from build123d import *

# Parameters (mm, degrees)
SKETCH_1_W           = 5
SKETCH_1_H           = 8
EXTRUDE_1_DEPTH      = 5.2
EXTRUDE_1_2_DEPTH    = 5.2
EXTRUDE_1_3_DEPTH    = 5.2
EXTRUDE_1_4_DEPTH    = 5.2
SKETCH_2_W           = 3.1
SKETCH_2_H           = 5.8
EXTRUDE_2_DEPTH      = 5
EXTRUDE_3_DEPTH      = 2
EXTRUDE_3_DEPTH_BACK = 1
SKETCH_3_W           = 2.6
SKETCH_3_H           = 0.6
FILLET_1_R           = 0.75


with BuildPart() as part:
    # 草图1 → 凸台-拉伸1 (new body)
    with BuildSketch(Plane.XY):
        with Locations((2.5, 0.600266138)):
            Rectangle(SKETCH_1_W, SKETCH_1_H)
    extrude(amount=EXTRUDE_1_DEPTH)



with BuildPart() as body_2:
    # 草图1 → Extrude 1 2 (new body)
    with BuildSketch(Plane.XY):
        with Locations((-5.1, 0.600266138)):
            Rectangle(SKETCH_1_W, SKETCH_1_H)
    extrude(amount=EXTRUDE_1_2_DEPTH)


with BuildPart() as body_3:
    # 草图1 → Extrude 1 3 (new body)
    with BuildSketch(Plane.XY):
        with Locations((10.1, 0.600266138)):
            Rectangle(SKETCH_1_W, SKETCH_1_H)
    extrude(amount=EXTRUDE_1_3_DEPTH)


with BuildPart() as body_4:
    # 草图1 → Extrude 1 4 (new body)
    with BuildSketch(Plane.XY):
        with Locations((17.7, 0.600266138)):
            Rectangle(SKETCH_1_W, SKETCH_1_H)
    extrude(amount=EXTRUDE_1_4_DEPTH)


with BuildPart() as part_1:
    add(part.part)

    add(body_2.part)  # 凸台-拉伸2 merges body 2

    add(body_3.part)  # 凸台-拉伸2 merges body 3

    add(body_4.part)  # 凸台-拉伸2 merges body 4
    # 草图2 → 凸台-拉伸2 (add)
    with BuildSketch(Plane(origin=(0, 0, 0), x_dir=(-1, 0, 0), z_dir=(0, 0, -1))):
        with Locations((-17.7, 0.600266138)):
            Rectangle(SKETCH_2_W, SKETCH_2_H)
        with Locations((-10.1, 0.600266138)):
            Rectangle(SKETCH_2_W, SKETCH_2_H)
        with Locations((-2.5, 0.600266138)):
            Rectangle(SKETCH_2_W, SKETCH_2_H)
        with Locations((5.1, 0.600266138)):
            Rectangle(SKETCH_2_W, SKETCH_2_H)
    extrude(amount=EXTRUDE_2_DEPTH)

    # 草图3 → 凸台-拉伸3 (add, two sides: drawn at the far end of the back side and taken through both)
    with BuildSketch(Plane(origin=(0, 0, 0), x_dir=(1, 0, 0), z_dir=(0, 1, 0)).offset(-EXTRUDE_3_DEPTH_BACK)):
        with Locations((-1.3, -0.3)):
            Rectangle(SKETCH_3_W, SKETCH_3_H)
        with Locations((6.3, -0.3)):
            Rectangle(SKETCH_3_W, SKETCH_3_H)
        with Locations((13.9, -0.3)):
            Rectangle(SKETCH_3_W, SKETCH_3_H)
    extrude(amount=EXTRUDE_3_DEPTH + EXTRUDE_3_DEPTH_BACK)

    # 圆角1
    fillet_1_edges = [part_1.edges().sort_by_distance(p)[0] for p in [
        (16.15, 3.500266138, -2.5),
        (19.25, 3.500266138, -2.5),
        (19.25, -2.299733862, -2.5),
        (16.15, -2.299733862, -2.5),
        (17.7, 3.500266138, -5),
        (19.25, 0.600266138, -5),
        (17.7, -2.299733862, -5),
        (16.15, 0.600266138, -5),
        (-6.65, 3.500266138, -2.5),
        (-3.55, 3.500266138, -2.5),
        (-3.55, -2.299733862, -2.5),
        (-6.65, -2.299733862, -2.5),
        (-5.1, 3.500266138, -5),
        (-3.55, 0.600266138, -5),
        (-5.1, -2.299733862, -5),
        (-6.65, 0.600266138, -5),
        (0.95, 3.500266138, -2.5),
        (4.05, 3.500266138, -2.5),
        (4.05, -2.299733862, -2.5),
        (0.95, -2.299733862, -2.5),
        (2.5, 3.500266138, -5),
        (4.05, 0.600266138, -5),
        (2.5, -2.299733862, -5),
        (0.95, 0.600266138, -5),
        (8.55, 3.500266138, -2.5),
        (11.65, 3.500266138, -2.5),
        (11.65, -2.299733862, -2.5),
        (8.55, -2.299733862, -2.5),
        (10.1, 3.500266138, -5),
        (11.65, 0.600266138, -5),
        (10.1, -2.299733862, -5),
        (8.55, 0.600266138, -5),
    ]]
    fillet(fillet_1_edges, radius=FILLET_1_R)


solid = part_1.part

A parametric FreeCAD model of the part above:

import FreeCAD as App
import Part
import Sketcher

V = App.Vector


def edges_at(feature, points):
    """Names of the edges that pass closest to the given points."""
    edges = feature.Shape.Edges
    near = lambda p: min(range(len(edges)), key=lambda i: edges[i].distToShape(Part.Vertex(*p))[0])
    return sorted({f"Edge{near(p) + 1}" for p in points})

doc = App.newDocument("Part")
body = doc.addObject("PartDesign::Body", "Body")

sketch1 = body.newObject("Sketcher::SketchObject", "Sketch")
sketch1.AttachmentSupport = (doc.getObject("XY_Plane"), [""])
sketch1.MapMode = "FlatFace"
sketch1.addGeometry(Part.LineSegment(V(0, 5, 0), V(0, -3, 0)), False)
sketch1.addGeometry(Part.LineSegment(V(0, -3, 0), V(5, -3, 0)), False)
sketch1.addGeometry(Part.LineSegment(V(5, -3, 0), V(5, 5, 0)), False)
sketch1.addGeometry(Part.LineSegment(V(5, 5, 0), V(0, 5, 0)), False)
sketch1.addConstraint(Sketcher.Constraint("Coincident", 0, 2, 1, 1))
sketch1.addConstraint(Sketcher.Constraint("Coincident", 1, 2, 2, 1))
sketch1.addConstraint(Sketcher.Constraint("Coincident", 2, 2, 3, 1))
sketch1.addConstraint(Sketcher.Constraint("Coincident", 3, 2, 0, 1))
sketch1.addConstraint(Sketcher.Constraint("Vertical", 0))
sketch1.addConstraint(Sketcher.Constraint("Horizontal", 1))
sketch1.addConstraint(Sketcher.Constraint("Vertical", 2))
sketch1.addConstraint(Sketcher.Constraint("Horizontal", 3))
sketch1.addConstraint(Sketcher.Constraint("PointOnObject", 0, 2, -2))
sketch1.addConstraint(Sketcher.Constraint("DistanceX", 1, 1, 1, 2, 5.0))
sketch1.addConstraint(Sketcher.Constraint("DistanceY", 0, 2, 0, 1, 8.0))
sketch1.addConstraint(Sketcher.Constraint("DistanceY", 0, 2, -1, 1, 3.399734))
pad1 = body.newObject("PartDesign::Pad", "Pad")
pad1.Profile = sketch1
pad1.Length = 5.2
body2 = doc.addObject("PartDesign::Body", "Body001")

sketch2 = body2.newObject("Sketcher::SketchObject", "Sketch001")
sketch2.AttachmentSupport = (doc.getObject("XY_Plane001"), [""])
sketch2.MapMode = "FlatFace"
sketch2.addGeometry(Part.LineSegment(V(-8, 5, 0), V(-8, -3, 0)), False)
sketch2.addGeometry(Part.LineSegment(V(-8, -3, 0), V(-3, -3, 0)), False)
sketch2.addGeometry(Part.LineSegment(V(-3, -3, 0), V(-3, 5, 0)), False)
sketch2.addGeometry(Part.LineSegment(V(-3, 5, 0), V(-8, 5, 0)), False)
sketch2.addConstraint(Sketcher.Constraint("Coincident", 0, 2, 1, 1))
sketch2.addConstraint(Sketcher.Constraint("Coincident", 1, 2, 2, 1))
sketch2.addConstraint(Sketcher.Constraint("Coincident", 2, 2, 3, 1))
sketch2.addConstraint(Sketcher.Constraint("Coincident", 3, 2, 0, 1))
sketch2.addConstraint(Sketcher.Constraint("Vertical", 0))
sketch2.addConstraint(Sketcher.Constraint("Horizontal", 1))
sketch2.addConstraint(Sketcher.Constraint("Vertical", 2))
sketch2.addConstraint(Sketcher.Constraint("Horizontal", 3))
sketch2.addConstraint(Sketcher.Constraint("DistanceX", 1, 1, 1, 2, 5.0))
sketch2.addConstraint(Sketcher.Constraint("DistanceY", 0, 2, 0, 1, 8.0))
sketch2.addConstraint(Sketcher.Constraint("DistanceX", 0, 2, -1, 1, 7.6))
sketch2.addConstraint(Sketcher.Constraint("DistanceY", 0, 2, -1, 1, 3.399734))
pad2 = body2.newObject("PartDesign::Pad", "Pad001")
pad2.Profile = sketch2
pad2.Length = 5.2
body3 = doc.addObject("PartDesign::Body", "Body002")

sketch3 = body3.newObject("Sketcher::SketchObject", "Sketch002")
sketch3.AttachmentSupport = (doc.getObject("XY_Plane002"), [""])
sketch3.MapMode = "FlatFace"
sketch3.addGeometry(Part.LineSegment(V(8, 5, 0), V(8, -3, 0)), False)
sketch3.addGeometry(Part.LineSegment(V(8, -3, 0), V(13, -3, 0)), False)
sketch3.addGeometry(Part.LineSegment(V(13, -3, 0), V(13, 5, 0)), False)
sketch3.addGeometry(Part.LineSegment(V(13, 5, 0), V(8, 5, 0)), False)
sketch3.addConstraint(Sketcher.Constraint("Coincident", 0, 2, 1, 1))
sketch3.addConstraint(Sketcher.Constraint("Coincident", 1, 2, 2, 1))
sketch3.addConstraint(Sketcher.Constraint("Coincident", 2, 2, 3, 1))
sketch3.addConstraint(Sketcher.Constraint("Coincident", 3, 2, 0, 1))
sketch3.addConstraint(Sketcher.Constraint("Vertical", 0))
sketch3.addConstraint(Sketcher.Constraint("Horizontal", 1))
sketch3.addConstraint(Sketcher.Constraint("Vertical", 2))
sketch3.addConstraint(Sketcher.Constraint("Horizontal", 3))
sketch3.addConstraint(Sketcher.Constraint("DistanceX", 1, 1, 1, 2, 5.0))
sketch3.addConstraint(Sketcher.Constraint("DistanceY", 0, 2, 0, 1, 8.0))
sketch3.addConstraint(Sketcher.Constraint("DistanceX", -1, 1, 0, 2, 7.6))
sketch3.addConstraint(Sketcher.Constraint("DistanceY", 0, 2, -1, 1, 3.399734))
pad3 = body3.newObject("PartDesign::Pad", "Pad002")
pad3.Profile = sketch3
pad3.Length = 5.2
body4 = doc.addObject("PartDesign::Body", "Body003")

sketch4 = body4.newObject("Sketcher::SketchObject", "Sketch003")
sketch4.AttachmentSupport = (doc.getObject("XY_Plane003"), [""])
sketch4.MapMode = "FlatFace"
sketch4.addGeometry(Part.LineSegment(V(15, 5, 0), V(15, -3, 0)), False)
sketch4.addGeometry(Part.LineSegment(V(15, -3, 0), V(20, -3, 0)), False)
sketch4.addGeometry(Part.LineSegment(V(20, -3, 0), V(20, 5, 0)), False)
sketch4.addGeometry(Part.LineSegment(V(20, 5, 0), V(15, 5, 0)), False)
sketch4.addConstraint(Sketcher.Constraint("Coincident", 0, 2, 1, 1))
sketch4.addConstraint(Sketcher.Constraint("Coincident", 1, 2, 2, 1))
sketch4.addConstraint(Sketcher.Constraint("Coincident", 2, 2, 3, 1))
sketch4.addConstraint(Sketcher.Constraint("Coincident", 3, 2, 0, 1))
sketch4.addConstraint(Sketcher.Constraint("Vertical", 0))
sketch4.addConstraint(Sketcher.Constraint("Horizontal", 1))
sketch4.addConstraint(Sketcher.Constraint("Vertical", 2))
sketch4.addConstraint(Sketcher.Constraint("Horizontal", 3))
sketch4.addConstraint(Sketcher.Constraint("DistanceX", 1, 1, 1, 2, 5.0))
sketch4.addConstraint(Sketcher.Constraint("DistanceY", 0, 2, 0, 1, 8.0))
sketch4.addConstraint(Sketcher.Constraint("DistanceX", -1, 1, 0, 2, 15.2))
sketch4.addConstraint(Sketcher.Constraint("DistanceY", 0, 2, -1, 1, 3.399734))
pad4 = body4.newObject("PartDesign::Pad", "Pad003")
pad4.Profile = sketch4
pad4.Length = 5.2
body.AllowCompound = True
doc.recompute()

boolean = body.newObject("PartDesign::Boolean", "Boolean")
boolean.Type = "Fuse"
boolean.addObjects([body2])
doc.recompute()

boolean2 = body.newObject("PartDesign::Boolean", "Boolean001")
boolean2.Type = "Fuse"
boolean2.addObjects([body3])
doc.recompute()

boolean3 = body.newObject("PartDesign::Boolean", "Boolean002")
boolean3.Type = "Fuse"
boolean3.addObjects([body4])

sketch5 = body.newObject("Sketcher::SketchObject", "Sketch004")
sketch5.AttachmentSupport = (doc.getObject("XY_Plane"), [""])
sketch5.MapMode = "FlatFace"
sketch5.addGeometry(Part.LineSegment(V(19.2, 3.5, 0), V(19.2, -2.3, 0)), False)
sketch5.addGeometry(Part.LineSegment(V(19.2, -2.3, 0), V(16.1, -2.3, 0)), False)
sketch5.addGeometry(Part.LineSegment(V(16.1, -2.3, 0), V(16.1, 3.5, 0)), False)
sketch5.addGeometry(Part.LineSegment(V(16.1, 3.5, 0), V(19.2, 3.5, 0)), False)
sketch5.addGeometry(Part.LineSegment(V(11.7, 3.5, 0), V(11.7, -2.3, 0)), False)
sketch5.addGeometry(Part.LineSegment(V(11.7, -2.3, 0), V(8.6, -2.3, 0)), False)
sketch5.addGeometry(Part.LineSegment(V(8.6, -2.3, 0), V(8.6, 3.5, 0)), False)
sketch5.addGeometry(Part.LineSegment(V(8.6, 3.5, 0), V(11.7, 3.5, 0)), False)
sketch5.addGeometry(Part.LineSegment(V(4, 3.5, 0), V(4, -2.3, 0)), False)
sketch5.addGeometry(Part.LineSegment(V(4, -2.3, 0), V(0.9, -2.3, 0)), False)
sketch5.addGeometry(Part.LineSegment(V(0.9, -2.3, 0), V(0.9, 3.5, 0)), False)
sketch5.addGeometry(Part.LineSegment(V(0.9, 3.5, 0), V(4, 3.5, 0)), False)
sketch5.addGeometry(Part.LineSegment(V(-3.5, 3.5, 0), V(-3.5, -2.3, 0)), False)
sketch5.addGeometry(Part.LineSegment(V(-3.5, -2.3, 0), V(-6.7, -2.3, 0)), False)
sketch5.addGeometry(Part.LineSegment(V(-6.7, -2.3, 0), V(-6.7, 3.5, 0)), False)
sketch5.addGeometry(Part.LineSegment(V(-6.7, 3.5, 0), V(-3.5, 3.5, 0)), False)
sketch5.addConstraint(Sketcher.Constraint("Coincident", 0, 2, 1, 1))
sketch5.addConstraint(Sketcher.Constraint("Coincident", 1, 2, 2, 1))
sketch5.addConstraint(Sketcher.Constraint("Coincident", 2, 2, 3, 1))
sketch5.addConstraint(Sketcher.Constraint("Coincident", 3, 2, 0, 1))
sketch5.addConstraint(Sketcher.Constraint("Coincident", 4, 2, 5, 1))
sketch5.addConstraint(Sketcher.Constraint("Coincident", 5, 2, 6, 1))
sketch5.addConstraint(Sketcher.Constraint("Coincident", 6, 2, 7, 1))
sketch5.addConstraint(Sketcher.Constraint("Coincident", 7, 2, 4, 1))
sketch5.addConstraint(Sketcher.Constraint("Coincident", 8, 2, 9, 1))
sketch5.addConstraint(Sketcher.Constraint("Coincident", 9, 2, 10, 1))
sketch5.addConstraint(Sketcher.Constraint("Coincident", 10, 2, 11, 1))
sketch5.addConstraint(Sketcher.Constraint("Coincident", 11, 2, 8, 1))
sketch5.addConstraint(Sketcher.Constraint("Coincident", 12, 2, 13, 1))
sketch5.addConstraint(Sketcher.Constraint("Coincident", 13, 2, 14, 1))
sketch5.addConstraint(Sketcher.Constraint("Coincident", 14, 2, 15, 1))
sketch5.addConstraint(Sketcher.Constraint("Coincident", 15, 2, 12, 1))
sketch5.addConstraint(Sketcher.Constraint("Vertical", 0))
sketch5.addConstraint(Sketcher.Constraint("Horizontal", 1))
sketch5.addConstraint(Sketcher.Constraint("Vertical", 2))
sketch5.addConstraint(Sketcher.Constraint("Horizontal", 3))
sketch5.addConstraint(Sketcher.Constraint("Vertical", 4))
sketch5.addConstraint(Sketcher.Constraint("Horizontal", 5))
sketch5.addConstraint(Sketcher.Constraint("Vertical", 6))
sketch5.addConstraint(Sketcher.Constraint("Horizontal", 7))
sketch5.addConstraint(Sketcher.Constraint("Vertical", 8))
sketch5.addConstraint(Sketcher.Constraint("Horizontal", 9))
sketch5.addConstraint(Sketcher.Constraint("Vertical", 10))
sketch5.addConstraint(Sketcher.Constraint("Horizontal", 11))
sketch5.addConstraint(Sketcher.Constraint("Vertical", 12))
sketch5.addConstraint(Sketcher.Constraint("Horizontal", 13))
sketch5.addConstraint(Sketcher.Constraint("Vertical", 14))
sketch5.addConstraint(Sketcher.Constraint("Horizontal", 15))
sketch5.addConstraint(Sketcher.Constraint("Horizontal", 1, 2, 4, 2))
sketch5.addConstraint(Sketcher.Constraint("Horizontal", 3, 2, 6, 2))
sketch5.addConstraint(Sketcher.Constraint("Horizontal", 5, 2, 8, 2))
sketch5.addConstraint(Sketcher.Constraint("Horizontal", 7, 2, 10, 2))
sketch5.addConstraint(Sketcher.Constraint("Horizontal", 9, 2, 12, 2))
sketch5.addConstraint(Sketcher.Constraint("Horizontal", 11, 2, 14, 2))
sketch5.addConstraint(Sketcher.Constraint("Equal", 3, 5))
sketch5.addConstraint(Sketcher.Constraint("Equal", 7, 9))
sketch5.addConstraint(Sketcher.Constraint("Equal", 11, 13))
sketch5.addConstraint(Sketcher.Constraint("DistanceX", 1, 2, 1, 1, 3.1))
sketch5.addConstraint(Sketcher.Constraint("DistanceY", 0, 2, 0, 1, 5.8))
sketch5.addConstraint(Sketcher.Constraint("DistanceX", 4, 2, 1, 2, 4.5))
sketch5.addConstraint(Sketcher.Constraint("DistanceX", 8, 2, 5, 2, 4.5))
sketch5.addConstraint(Sketcher.Constraint("DistanceX", 12, 2, 9, 2, 4.5))
sketch5.addConstraint(Sketcher.Constraint("DistanceX", -1, 1, 0, 2, 19.25))
sketch5.addConstraint(Sketcher.Constraint("DistanceY", 0, 2, -1, 1, 2.299734))
pad5 = body.newObject("PartDesign::Pad", "Pad004")
pad5.Profile = sketch5
pad5.Length = 5
pad5.Reversed = True

sketch6 = body.newObject("Sketcher::SketchObject", "Sketch005")
sketch6.AttachmentSupport = (doc.getObject("XZ_Plane"), [""])
sketch6.MapMode = "FlatFace"
sketch6.addGeometry(Part.LineSegment(V(-2.6, 0, 0), V(-2.6, 0.6, 0)), False)
sketch6.addGeometry(Part.LineSegment(V(-2.6, 0.6, 0), V(0, 0.6, 0)), False)
sketch6.addGeometry(Part.LineSegment(V(0, 0.6, 0), V(0, 0, 0)), False)
sketch6.addGeometry(Part.LineSegment(V(0, 0, 0), V(-2.6, 0, 0)), False)
sketch6.addGeometry(Part.LineSegment(V(5, 0, 0), V(5, 0.6, 0)), False)
sketch6.addGeometry(Part.LineSegment(V(5, 0.6, 0), V(7.6, 0.6, 0)), False)
sketch6.addGeometry(Part.LineSegment(V(7.6, 0.6, 0), V(7.6, 0, 0)), False)
sketch6.addGeometry(Part.LineSegment(V(7.6, 0, 0), V(5, 0, 0)), False)
sketch6.addGeometry(Part.LineSegment(V(12.6, 0, 0), V(12.6, 0.6, 0)), False)
sketch6.addGeometry(Part.LineSegment(V(12.6, 0.6, 0), V(15.2, 0.6, 0)), False)
sketch6.addGeometry(Part.LineSegment(V(15.2, 0.6, 0), V(15.2, 0, 0)), False)
sketch6.addGeometry(Part.LineSegment(V(15.2, 0, 0), V(12.6, 0, 0)), False)
sketch6.addConstraint(Sketcher.Constraint("Coincident", 0, 2, 1, 1))
sketch6.addConstraint(Sketcher.Constraint("Coincident", 1, 2, 2, 1))
sketch6.addConstraint(Sketcher.Constraint("Coincident", 2, 2, 3, 1))
sketch6.addConstraint(Sketcher.Constraint("Coincident", 3, 2, 0, 1))
sketch6.addConstraint(Sketcher.Constraint("Coincident", 4, 2, 5, 1))
sketch6.addConstraint(Sketcher.Constraint("Coincident", 5, 2, 6, 1))
sketch6.addConstraint(Sketcher.Constraint("Coincident", 6, 2, 7, 1))
sketch6.addConstraint(Sketcher.Constraint("Coincident", 7, 2, 4, 1))
sketch6.addConstraint(Sketcher.Constraint("Coincident", 8, 2, 9, 1))
sketch6.addConstraint(Sketcher.Constraint("Coincident", 9, 2, 10, 1))
sketch6.addConstraint(Sketcher.Constraint("Coincident", 10, 2, 11, 1))
sketch6.addConstraint(Sketcher.Constraint("Coincident", 11, 2, 8, 1))
sketch6.addConstraint(Sketcher.Constraint("Vertical", 0))
sketch6.addConstraint(Sketcher.Constraint("Horizontal", 1))
sketch6.addConstraint(Sketcher.Constraint("Vertical", 2))
sketch6.addConstraint(Sketcher.Constraint("Horizontal", 3))
sketch6.addConstraint(Sketcher.Constraint("Vertical", 4))
sketch6.addConstraint(Sketcher.Constraint("Horizontal", 5))
sketch6.addConstraint(Sketcher.Constraint("Vertical", 6))
sketch6.addConstraint(Sketcher.Constraint("Horizontal", 7))
sketch6.addConstraint(Sketcher.Constraint("Vertical", 8))
sketch6.addConstraint(Sketcher.Constraint("Horizontal", 9))
sketch6.addConstraint(Sketcher.Constraint("Vertical", 10))
sketch6.addConstraint(Sketcher.Constraint("Horizontal", 11))
sketch6.addConstraint(Sketcher.Constraint("Coincident", 2, 2, -1, 1))
sketch6.addConstraint(Sketcher.Constraint("PointOnObject", 6, 2, -1))
sketch6.addConstraint(Sketcher.Constraint("PointOnObject", 10, 2, -1))
sketch6.addConstraint(Sketcher.Constraint("Horizontal", 1, 2, 4, 2))
sketch6.addConstraint(Sketcher.Constraint("Horizontal", 5, 2, 8, 2))
sketch6.addConstraint(Sketcher.Constraint("Equal", 3, 5))
sketch6.addConstraint(Sketcher.Constraint("Equal", 7, 9))
sketch6.addConstraint(Sketcher.Constraint("DistanceX", 1, 1, 1, 2, 2.6))
sketch6.addConstraint(Sketcher.Constraint("DistanceY", 0, 1, 0, 2, 0.6))
sketch6.addConstraint(Sketcher.Constraint("DistanceX", -1, 1, 4, 2, 5.0))
sketch6.addConstraint(Sketcher.Constraint("DistanceX", 5, 2, 8, 2, 5.0))
pad6 = body.newObject("PartDesign::Pad", "Pad005")
pad6.Profile = sketch6
pad6.Type = "TwoLengths"
pad6.Length = 2
pad6.Length2 = 1
pad6.Reversed = True
doc.recompute()

fillet = body.newObject("PartDesign::Fillet", "Fillet")
fillet.Base = (pad6, edges_at(pad6, [
    (16.15, 3.5, -2.5),
    (19.25, 3.5, -2.5),
    (19.25, -2.3, -2.5),
    (16.15, -2.3, -2.5),
    (17.7, 3.5, -5),
    (19.25, 0.6, -5),
    (17.7, -2.3, -5),
    (16.15, 0.6, -5),
    (-6.65, 3.5, -2.5),
    (-3.55, 3.5, -2.5),
    (-3.55, -2.3, -2.5),
    (-6.65, -2.3, -2.5),
    (-5.1, 3.5, -5),
    (-3.55, 0.6, -5),
    (-5.1, -2.3, -5),
    (-6.65, 0.6, -5),
    (0.95, 3.5, -2.5),
    (4.05, 3.5, -2.5),
    (4.05, -2.3, -2.5),
    (0.95, -2.3, -2.5),
    (2.5, 3.5, -5),
    (4.05, 0.6, -5),
    (2.5, -2.3, -5),
    (0.95, 0.6, -5),
    (8.55, 3.5, -2.5),
    (11.65, 3.5, -2.5),
    (11.65, -2.3, -2.5),
    (8.55, -2.3, -2.5),
    (10.1, 3.5, -5),
    (11.65, 0.6, -5),
    (10.1, -2.3, -5),
    (8.55, 0.6, -5),
]))
fillet.Radius = 0.75

doc.recompute()
